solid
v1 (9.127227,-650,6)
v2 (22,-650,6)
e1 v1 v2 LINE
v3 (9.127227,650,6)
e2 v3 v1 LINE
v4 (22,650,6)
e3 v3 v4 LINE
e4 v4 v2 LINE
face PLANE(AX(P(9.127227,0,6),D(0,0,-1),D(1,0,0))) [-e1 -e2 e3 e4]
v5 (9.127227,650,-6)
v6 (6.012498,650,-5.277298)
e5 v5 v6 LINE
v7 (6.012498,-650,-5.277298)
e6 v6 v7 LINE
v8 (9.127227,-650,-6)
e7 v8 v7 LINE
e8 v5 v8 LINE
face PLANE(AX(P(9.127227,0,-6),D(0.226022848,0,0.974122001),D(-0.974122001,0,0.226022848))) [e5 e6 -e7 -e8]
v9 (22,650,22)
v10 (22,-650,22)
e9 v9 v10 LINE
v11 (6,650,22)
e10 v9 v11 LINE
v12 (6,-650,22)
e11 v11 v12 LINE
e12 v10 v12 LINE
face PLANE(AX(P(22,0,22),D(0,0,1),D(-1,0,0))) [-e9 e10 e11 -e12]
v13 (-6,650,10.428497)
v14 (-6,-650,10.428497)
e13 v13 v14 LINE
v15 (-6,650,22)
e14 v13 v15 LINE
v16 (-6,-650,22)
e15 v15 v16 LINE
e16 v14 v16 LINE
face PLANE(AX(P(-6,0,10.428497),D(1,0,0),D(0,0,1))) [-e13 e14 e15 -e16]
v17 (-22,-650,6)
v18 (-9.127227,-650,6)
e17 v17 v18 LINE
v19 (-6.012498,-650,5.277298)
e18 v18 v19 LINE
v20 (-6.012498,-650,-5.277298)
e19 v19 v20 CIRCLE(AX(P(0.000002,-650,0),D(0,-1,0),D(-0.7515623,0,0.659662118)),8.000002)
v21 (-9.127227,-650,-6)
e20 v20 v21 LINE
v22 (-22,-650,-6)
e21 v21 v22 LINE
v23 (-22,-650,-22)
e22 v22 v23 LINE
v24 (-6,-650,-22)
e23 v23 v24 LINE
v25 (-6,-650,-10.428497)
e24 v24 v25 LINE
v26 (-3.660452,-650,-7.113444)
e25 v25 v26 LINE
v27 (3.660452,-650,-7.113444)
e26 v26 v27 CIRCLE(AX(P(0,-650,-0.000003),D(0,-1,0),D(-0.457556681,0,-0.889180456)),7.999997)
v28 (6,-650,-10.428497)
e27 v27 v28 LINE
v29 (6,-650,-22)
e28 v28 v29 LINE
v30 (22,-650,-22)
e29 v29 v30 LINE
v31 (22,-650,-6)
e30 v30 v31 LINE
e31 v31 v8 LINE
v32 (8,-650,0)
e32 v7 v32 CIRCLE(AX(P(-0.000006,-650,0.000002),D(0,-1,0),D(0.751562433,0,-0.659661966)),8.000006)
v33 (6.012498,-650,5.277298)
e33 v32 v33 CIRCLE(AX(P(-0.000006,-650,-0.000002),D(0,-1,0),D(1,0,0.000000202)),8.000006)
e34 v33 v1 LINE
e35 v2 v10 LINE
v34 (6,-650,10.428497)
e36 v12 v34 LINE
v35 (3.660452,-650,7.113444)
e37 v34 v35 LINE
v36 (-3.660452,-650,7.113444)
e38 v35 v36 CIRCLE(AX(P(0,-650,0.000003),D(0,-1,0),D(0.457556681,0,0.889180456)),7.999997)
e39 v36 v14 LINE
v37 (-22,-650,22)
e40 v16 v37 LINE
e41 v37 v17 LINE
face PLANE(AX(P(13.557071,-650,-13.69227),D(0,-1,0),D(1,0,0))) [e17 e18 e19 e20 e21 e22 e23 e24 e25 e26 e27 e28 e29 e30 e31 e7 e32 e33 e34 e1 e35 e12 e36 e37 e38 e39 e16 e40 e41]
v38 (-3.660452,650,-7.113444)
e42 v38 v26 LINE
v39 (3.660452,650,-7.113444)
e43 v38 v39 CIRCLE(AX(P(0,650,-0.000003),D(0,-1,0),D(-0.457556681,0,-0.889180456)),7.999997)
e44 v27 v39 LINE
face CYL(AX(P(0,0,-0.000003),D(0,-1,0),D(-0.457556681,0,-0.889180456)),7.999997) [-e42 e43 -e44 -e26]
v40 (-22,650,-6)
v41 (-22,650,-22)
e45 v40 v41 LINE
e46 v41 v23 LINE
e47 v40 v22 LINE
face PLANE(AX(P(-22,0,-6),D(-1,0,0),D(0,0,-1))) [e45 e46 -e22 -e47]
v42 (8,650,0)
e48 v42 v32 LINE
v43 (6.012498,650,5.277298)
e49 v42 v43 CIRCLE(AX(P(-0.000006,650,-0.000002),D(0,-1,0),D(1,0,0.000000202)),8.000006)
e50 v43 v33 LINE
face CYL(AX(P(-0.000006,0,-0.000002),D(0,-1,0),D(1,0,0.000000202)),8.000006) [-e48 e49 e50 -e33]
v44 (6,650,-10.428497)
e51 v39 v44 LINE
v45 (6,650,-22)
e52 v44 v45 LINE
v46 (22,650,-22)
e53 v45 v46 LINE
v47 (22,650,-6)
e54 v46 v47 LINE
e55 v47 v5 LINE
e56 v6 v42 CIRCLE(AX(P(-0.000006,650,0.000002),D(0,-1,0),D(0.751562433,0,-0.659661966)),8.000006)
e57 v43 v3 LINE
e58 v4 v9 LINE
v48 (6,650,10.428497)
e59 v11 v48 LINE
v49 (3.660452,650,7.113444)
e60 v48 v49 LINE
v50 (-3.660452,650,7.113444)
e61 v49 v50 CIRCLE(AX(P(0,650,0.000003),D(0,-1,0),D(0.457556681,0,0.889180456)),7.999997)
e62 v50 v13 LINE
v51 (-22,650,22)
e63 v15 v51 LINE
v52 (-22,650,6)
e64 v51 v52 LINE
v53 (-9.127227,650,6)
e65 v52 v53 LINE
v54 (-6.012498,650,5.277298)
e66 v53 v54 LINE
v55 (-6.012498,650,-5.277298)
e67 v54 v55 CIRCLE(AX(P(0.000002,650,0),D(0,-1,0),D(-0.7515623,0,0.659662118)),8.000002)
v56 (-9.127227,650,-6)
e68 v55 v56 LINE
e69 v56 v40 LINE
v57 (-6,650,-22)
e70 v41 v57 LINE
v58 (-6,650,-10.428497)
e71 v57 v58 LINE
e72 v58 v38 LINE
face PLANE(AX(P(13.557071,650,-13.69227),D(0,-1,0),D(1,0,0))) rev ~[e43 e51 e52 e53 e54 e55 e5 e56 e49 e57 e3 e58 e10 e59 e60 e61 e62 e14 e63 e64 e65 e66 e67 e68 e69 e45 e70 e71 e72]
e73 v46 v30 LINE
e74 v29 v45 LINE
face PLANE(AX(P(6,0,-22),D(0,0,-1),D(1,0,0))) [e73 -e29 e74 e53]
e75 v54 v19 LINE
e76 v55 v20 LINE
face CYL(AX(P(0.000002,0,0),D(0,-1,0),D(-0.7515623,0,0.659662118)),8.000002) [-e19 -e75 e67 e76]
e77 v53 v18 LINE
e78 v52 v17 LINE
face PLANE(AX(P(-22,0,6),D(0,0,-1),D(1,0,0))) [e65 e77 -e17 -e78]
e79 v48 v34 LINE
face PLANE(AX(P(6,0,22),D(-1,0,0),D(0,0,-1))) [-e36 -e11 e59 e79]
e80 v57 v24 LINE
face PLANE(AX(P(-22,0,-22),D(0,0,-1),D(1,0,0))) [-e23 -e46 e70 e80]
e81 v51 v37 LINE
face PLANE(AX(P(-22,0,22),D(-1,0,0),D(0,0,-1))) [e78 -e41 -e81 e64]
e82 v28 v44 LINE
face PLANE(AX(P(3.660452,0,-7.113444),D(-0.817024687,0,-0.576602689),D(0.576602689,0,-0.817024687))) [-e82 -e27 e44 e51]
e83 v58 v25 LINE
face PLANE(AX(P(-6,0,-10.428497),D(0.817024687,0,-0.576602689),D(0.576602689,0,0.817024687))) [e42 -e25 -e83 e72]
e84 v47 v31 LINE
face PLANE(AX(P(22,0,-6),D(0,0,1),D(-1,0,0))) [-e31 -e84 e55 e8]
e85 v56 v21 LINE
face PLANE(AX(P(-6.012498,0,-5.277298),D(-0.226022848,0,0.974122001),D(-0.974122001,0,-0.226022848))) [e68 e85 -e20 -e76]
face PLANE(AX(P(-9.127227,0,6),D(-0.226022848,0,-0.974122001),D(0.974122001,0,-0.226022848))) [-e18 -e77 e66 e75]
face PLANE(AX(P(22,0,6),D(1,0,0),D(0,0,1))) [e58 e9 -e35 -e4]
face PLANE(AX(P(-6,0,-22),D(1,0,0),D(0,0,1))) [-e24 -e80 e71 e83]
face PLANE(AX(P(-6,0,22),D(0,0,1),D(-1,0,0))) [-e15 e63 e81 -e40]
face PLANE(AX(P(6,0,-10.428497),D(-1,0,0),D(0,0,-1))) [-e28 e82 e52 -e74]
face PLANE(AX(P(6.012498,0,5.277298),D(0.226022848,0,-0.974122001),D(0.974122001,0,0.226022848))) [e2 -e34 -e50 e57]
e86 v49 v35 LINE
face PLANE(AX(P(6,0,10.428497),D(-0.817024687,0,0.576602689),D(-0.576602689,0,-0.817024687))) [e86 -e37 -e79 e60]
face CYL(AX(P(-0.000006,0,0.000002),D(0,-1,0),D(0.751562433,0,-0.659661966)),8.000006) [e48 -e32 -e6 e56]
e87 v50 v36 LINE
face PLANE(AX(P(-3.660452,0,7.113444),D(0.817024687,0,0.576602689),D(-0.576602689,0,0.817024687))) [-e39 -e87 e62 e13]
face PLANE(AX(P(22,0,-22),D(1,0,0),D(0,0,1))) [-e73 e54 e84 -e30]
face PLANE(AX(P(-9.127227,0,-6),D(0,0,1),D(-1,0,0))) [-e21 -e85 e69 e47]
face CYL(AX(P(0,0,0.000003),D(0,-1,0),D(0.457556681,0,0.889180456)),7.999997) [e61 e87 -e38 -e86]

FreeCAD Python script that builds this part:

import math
import FreeCAD as App
import Part
import Sketcher

V = App.Vector
Q = App.Units.Quantity

doc = App.newDocument("Part")
body = doc.addObject("PartDesign::Body", "Body")

sketch1 = body.newObject("Sketcher::SketchObject", "Sketch")
sketch1.AttachmentSupport = (doc.getObject("XZ_Plane"), [""])
sketch1.MapMode = "FlatFace"
sketch1.addGeometry(Part.LineSegment(V(6, -22, 0), V(22, -22, 0)), False)
sketch1.addGeometry(Part.LineSegment(V(22, -22, 0), V(22, -6, 0)), False)
sketch1.addGeometry(Part.LineSegment(V(22, -6, 0), V(9.1, -6, 0)), False)
sketch1.addGeometry(Part.LineSegment(V(9.1, -6, 0), V(6, -5.3, 0)), False)
sketch1.addGeometry(Part.ArcOfCircle(Part.Circle(V(0, 0, 0), V(0, 0, 1), 8), math.radians(-41), math.radians(0)), False)
sketch1.addGeometry(Part.ArcOfCircle(Part.Circle(V(0, 0, 0), V(0, 0, 1), 8), math.radians(0), math.radians(41)), False)
sketch1.addGeometry(Part.LineSegment(V(6, 5.3, 0), V(9.1, 6, 0)), False)
sketch1.addGeometry(Part.LineSegment(V(9.1, 6, 0), V(22, 6, 0)), False)
sketch1.addGeometry(Part.LineSegment(V(22, 6, 0), V(22, 22, 0)), False)
sketch1.addGeometry(Part.LineSegment(V(22, 22, 0), V(6, 22, 0)), False)
sketch1.addGeometry(Part.LineSegment(V(6, 22, 0), V(6, 10.4, 0)), False)
sketch1.addGeometry(Part.LineSegment(V(6, 10.4, 0), V(3.7, 7.1, 0)), False)
sketch1.addGeometry(Part.ArcOfCircle(Part.Circle(V(0, 0, 0), V(0, 0, 1), 8), math.radians(63), math.radians(117)), False)
sketch1.addGeometry(Part.LineSegment(V(-3.7, 7.1, 0), V(-6, 10.4, 0)), False)
sketch1.addGeometry(Part.LineSegment(V(-6, 10.4, 0), V(-6, 22, 0)), False)
sketch1.addGeometry(Part.LineSegment(V(-6, 22, 0), V(-22, 22, 0)), False)
sketch1.addGeometry(Part.LineSegment(V(-22, 22, 0), V(-22, 6, 0)), False)
sketch1.addGeometry(Part.LineSegment(V(-22, 6, 0), V(-9.1, 6, 0)), False)
sketch1.addGeometry(Part.LineSegment(V(-9.1, 6, 0), V(-6, 5.3, 0)), False)
sketch1.addGeometry(Part.ArcOfCircle(Part.Circle(V(0, 0, 0), V(0, 0, 1), 8), math.radians(139), math.radians(221)), False)
sketch1.addGeometry(Part.LineSegment(V(-6, -5.3, 0), V(-9.1, -6, 0)), False)
sketch1.addGeometry(Part.LineSegment(V(-9.1, -6, 0), V(-22, -6, 0)), False)
sketch1.addGeometry(Part.LineSegment(V(-22, -6, 0), V(-22, -22, 0)), False)
sketch1.addGeometry(Part.LineSegment(V(-22, -22, 0), V(-6, -22, 0)), False)
sketch1.addGeometry(Part.LineSegment(V(-6, -22, 0), V(-6, -10.4, 0)), False)
sketch1.addGeometry(Part.LineSegment(V(-6, -10.4, 0), V(-3.7, -7.1, 0)), False)
sketch1.addGeometry(Part.ArcOfCircle(Part.Circle(V(0, 0, 0), V(0, 0, 1), 8), math.radians(-117), math.radians(-63)), False)
sketch1.addGeometry(Part.LineSegment(V(3.7, -7.1, 0), V(6, -10.4, 0)), False)
sketch1.addGeometry(Part.LineSegment(V(6, -10.4, 0), V(6, -22, 0)), False)
sketch1.addConstraint(Sketcher.Constraint("Coincident", 0, 2, 1, 1))
sketch1.addConstraint(Sketcher.Constraint("Coincident", 1, 2, 2, 1))
sketch1.addConstraint(Sketcher.Constraint("Coincident", 2, 2, 3, 1))
sketch1.addConstraint(Sketcher.Constraint("Coincident", 3, 2, 4, 1))
sketch1.addConstraint(Sketcher.Constraint("Tangent", 4, 2, 5, 1))
sketch1.addConstraint(Sketcher.Constraint("Coincident", 5, 2, 6, 1))
sketch1.addConstraint(Sketcher.Constraint("Coincident", 6, 2, 7, 1))
sketch1.addConstraint(Sketcher.Constraint("Coincident", 7, 2, 8, 1))
sketch1.addConstraint(Sketcher.Constraint("Coincident", 8, 2, 9, 1))
sketch1.addConstraint(Sketcher.Constraint("Coincident", 9, 2, 10, 1))
sketch1.addConstraint(Sketcher.Constraint("Coincident", 10, 2, 11, 1))
sketch1.addConstraint(Sketcher.Constraint("Coincident", 11, 2, 12, 1))
sketch1.addConstraint(Sketcher.Constraint("Coincident", 12, 2, 13, 1))
sketch1.addConstraint(Sketcher.Constraint("Coincident", 13, 2, 14, 1))
sketch1.addConstraint(Sketcher.Constraint("Coincident", 14, 2, 15, 1))
sketch1.addConstraint(Sketcher.Constraint("Coincident", 15, 2, 16, 1))
sketch1.addConstraint(Sketcher.Constraint("Coincident", 16, 2, 17, 1))
sketch1.addConstraint(Sketcher.Constraint("Coincident", 17, 2, 18, 1))
sketch1.addConstraint(Sketcher.Constraint("Coincident", 18, 2, 19, 1))
sketch1.addConstraint(Sketcher.Constraint("Coincident", 19, 2, 20, 1))
sketch1.addConstraint(Sketcher.Constraint("Coincident", 20, 2, 21, 1))
sketch1.addConstraint(Sketcher.Constraint("Coincident", 21, 2, 22, 1))
sketch1.addConstraint(Sketcher.Constraint("Coincident", 22, 2, 23, 1))
sketch1.addConstraint(Sketcher.Constraint("Coincident", 23, 2, 24, 1))
sketch1.addConstraint(Sketcher.Constraint("Coincident", 24, 2, 25, 1))
sketch1.addConstraint(Sketcher.Constraint("Coincident", 25, 2, 26, 1))
sketch1.addConstraint(Sketcher.Constraint("Coincident", 26, 2, 27, 1))
sketch1.addConstraint(Sketcher.Constraint("Coincident", 27, 2, 28, 1))
sketch1.addConstraint(Sketcher.Constraint("Coincident", 28, 2, 0, 1))
sketch1.addConstraint(Sketcher.Constraint("Horizontal", 0))
sketch1.addConstraint(Sketcher.Constraint("Vertical", 1))
sketch1.addConstraint(Sketcher.Constraint("Horizontal", 2))
sketch1.addConstraint(Sketcher.Constraint("Horizontal", 7))
sketch1.addConstraint(Sketcher.Constraint("Vertical", 8))
sketch1.addConstraint(Sketcher.Constraint("Horizontal", 9))
sketch1.addConstraint(Sketcher.Constraint("Vertical", 10))
sketch1.addConstraint(Sketcher.Constraint("Vertical", 14))
sketch1.addConstraint(Sketcher.Constraint("Horizontal", 15))
sketch1.addConstraint(Sketcher.Constraint("Vertical", 16))
sketch1.addConstraint(Sketcher.Constraint("Horizontal", 17))
sketch1.addConstraint(Sketcher.Constraint("Horizontal", 21))
sketch1.addConstraint(Sketcher.Constraint("Vertical", 22))
sketch1.addConstraint(Sketcher.Constraint("Horizontal", 23))
sketch1.addConstraint(Sketcher.Constraint("Vertical", 24))
sketch1.addConstraint(Sketcher.Constraint("Vertical", 28))
sketch1.addConstraint(Sketcher.Constraint("Coincident", 4, 3, -1, 1))
sketch1.addConstraint(Sketcher.Constraint("Coincident", 12, 3, -1, 1))
sketch1.addConstraint(Sketcher.Constraint("Coincident", 19, 3, -1, 1))
sketch1.addConstraint(Sketcher.Constraint("Coincident", 26, 3, -1, 1))
sketch1.addConstraint(Sketcher.Constraint("Equal", 4, 5))
sketch1.addConstraint(Sketcher.Constraint("Equal", 12, 26))
sketch1.addConstraint(Sketcher.Constraint("Symmetric", 0, 2, 15, 2, -1, 1))
sketch1.addConstraint(Sketcher.Constraint("Symmetric", 2, 2, 17, 2, -1, 1))
sketch1.addConstraint(Sketcher.Constraint("Symmetric", 3, 2, 18, 2, -1, 1))
sketch1.addConstraint(Sketcher.Constraint("Symmetric", 6, 2, 20, 2, -1, 1))
sketch1.addConstraint(Sketcher.Constraint("Symmetric", 8, 2, 22, 2, -1, 1))
sketch1.addConstraint(Sketcher.Constraint("Symmetric", 10, 2, 24, 2, -1, 1))
sketch1.addConstraint(Sketcher.Constraint("Symmetric", 13, 2, 27, 2, -1, 1))
sketch1.addConstraint(Sketcher.Constraint("Symmetric", 10, 2, 13, 2, -2))
sketch1.addConstraint(Sketcher.Constraint("Symmetric", 8, 2, 15, 2, -2))
sketch1.addConstraint(Sketcher.Constraint("Symmetric", 6, 2, 17, 2, -2))
sketch1.addConstraint(Sketcher.Constraint("PointOnObject", 4, 2, -1))
sketch1.addConstraint(Sketcher.Constraint("Parallel", 6, 20))
sketch1.addConstraint(Sketcher.Constraint("Parallel", 11, 25))
sketch1.addConstraint(Sketcher.Constraint("Parallel", 13, 27))
sketch1.addConstraint(Sketcher.Constraint("Horizontal", 11, 2, 12, 2))
sketch1.addConstraint(Sketcher.Constraint("Horizontal", 5, 2, 18, 2))
sketch1.addConstraint(Sketcher.Constraint("Equal", 23, 1))
sketch1.addConstraint(Sketcher.Constraint("Radius", 19, Q("8.000002 mm")))
sketch1.addConstraint(Sketcher.Constraint("DistanceX", 0, 1, 0, 2, Q("16 mm")))
sketch1.addConstraint(Sketcher.Constraint("DistanceX", -1, 1, 0, 2, Q("22 mm")))
sketch1.addConstraint(Sketcher.Constraint("DistanceY", 0, 2, -1, 1, Q("22 mm")))
sketch1.addConstraint(Sketcher.Constraint("Radius", 12, Q("7.999997 mm")))
sketch1.addConstraint(Sketcher.Constraint("DistanceY", 2, 2, 3, 2, Q("0.722702 mm")))
sketch1.addConstraint(Sketcher.Constraint("DistanceY", 5, 2, 10, 2, Q("5.151199 mm")))
sketch1.addConstraint(Sketcher.Constraint("Distance", 11, Q("4.05747 mm")))
sketch1.addConstraint(Sketcher.Constraint("DistanceX", 2, 2, 2, 1, Q("12.872773 mm")))
pad1 = body.newObject("PartDesign::Pad", "Pad")
pad1.Profile = sketch1
pad1.Length = 1300
pad1.Midplane = True

doc.recompute()
